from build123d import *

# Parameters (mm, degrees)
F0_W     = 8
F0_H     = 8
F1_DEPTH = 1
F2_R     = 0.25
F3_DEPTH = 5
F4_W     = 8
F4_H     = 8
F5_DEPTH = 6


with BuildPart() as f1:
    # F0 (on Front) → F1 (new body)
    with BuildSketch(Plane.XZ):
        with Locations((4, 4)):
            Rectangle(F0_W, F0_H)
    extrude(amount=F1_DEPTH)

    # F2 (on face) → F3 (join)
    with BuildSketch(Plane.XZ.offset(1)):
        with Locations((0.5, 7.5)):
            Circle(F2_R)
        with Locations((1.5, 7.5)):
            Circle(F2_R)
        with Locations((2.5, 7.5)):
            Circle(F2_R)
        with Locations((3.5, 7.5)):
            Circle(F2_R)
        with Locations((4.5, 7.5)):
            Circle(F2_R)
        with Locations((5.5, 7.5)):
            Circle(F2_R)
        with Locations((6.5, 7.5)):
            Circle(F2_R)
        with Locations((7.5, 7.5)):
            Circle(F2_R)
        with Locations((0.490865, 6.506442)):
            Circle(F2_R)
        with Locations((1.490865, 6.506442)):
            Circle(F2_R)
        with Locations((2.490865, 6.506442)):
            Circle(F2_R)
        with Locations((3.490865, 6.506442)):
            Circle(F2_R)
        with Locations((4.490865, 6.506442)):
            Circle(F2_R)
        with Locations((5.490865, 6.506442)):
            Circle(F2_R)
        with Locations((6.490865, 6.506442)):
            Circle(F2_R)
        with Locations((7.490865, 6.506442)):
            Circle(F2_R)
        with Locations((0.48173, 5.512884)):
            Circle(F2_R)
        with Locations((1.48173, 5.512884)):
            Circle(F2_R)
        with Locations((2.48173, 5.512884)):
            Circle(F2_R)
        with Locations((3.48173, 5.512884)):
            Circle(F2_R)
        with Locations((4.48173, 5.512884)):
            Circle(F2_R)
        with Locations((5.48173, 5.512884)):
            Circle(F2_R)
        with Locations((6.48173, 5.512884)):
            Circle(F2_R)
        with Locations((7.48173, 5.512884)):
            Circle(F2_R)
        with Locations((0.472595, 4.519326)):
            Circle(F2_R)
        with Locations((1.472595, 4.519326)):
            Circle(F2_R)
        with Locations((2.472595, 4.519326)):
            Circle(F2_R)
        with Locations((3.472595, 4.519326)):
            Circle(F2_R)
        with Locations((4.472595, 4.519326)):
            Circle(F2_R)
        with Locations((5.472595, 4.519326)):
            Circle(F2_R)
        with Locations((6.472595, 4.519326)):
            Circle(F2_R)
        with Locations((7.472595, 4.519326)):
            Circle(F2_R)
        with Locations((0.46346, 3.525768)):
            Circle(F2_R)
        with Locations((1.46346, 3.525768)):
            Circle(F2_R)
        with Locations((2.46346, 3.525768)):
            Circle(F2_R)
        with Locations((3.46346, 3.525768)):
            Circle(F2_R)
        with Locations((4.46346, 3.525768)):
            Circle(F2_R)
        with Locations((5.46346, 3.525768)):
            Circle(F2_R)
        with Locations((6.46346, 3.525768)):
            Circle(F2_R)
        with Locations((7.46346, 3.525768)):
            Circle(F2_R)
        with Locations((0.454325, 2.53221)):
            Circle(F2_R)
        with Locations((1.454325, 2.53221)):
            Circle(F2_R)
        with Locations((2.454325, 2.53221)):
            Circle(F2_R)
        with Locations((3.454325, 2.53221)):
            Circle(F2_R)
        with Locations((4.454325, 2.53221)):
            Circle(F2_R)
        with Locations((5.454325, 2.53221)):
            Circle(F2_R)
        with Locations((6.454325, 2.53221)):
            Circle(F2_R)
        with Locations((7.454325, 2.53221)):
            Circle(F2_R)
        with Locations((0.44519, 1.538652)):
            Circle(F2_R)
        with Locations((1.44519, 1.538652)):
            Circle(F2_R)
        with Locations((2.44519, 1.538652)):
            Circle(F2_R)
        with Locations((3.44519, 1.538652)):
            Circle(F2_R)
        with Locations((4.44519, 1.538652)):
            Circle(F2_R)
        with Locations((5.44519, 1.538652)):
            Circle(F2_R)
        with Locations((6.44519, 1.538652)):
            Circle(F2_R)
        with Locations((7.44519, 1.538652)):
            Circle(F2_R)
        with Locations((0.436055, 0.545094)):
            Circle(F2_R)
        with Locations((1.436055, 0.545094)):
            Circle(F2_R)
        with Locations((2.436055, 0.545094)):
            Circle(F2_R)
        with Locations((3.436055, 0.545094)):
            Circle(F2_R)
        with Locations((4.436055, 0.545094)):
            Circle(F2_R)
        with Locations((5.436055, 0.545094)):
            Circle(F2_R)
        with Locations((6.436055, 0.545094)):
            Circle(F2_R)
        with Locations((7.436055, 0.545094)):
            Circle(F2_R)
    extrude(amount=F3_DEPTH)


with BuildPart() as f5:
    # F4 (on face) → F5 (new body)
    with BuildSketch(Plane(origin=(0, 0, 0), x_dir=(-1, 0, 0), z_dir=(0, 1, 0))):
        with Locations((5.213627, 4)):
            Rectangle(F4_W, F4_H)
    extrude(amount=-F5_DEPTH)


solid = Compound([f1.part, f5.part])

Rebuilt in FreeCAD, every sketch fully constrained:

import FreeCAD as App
import Part
import Sketcher

V = App.Vector
Q = App.Units.Quantity

doc = App.newDocument("Part")
body = doc.addObject("PartDesign::Body", "Body")

# Sketch on XZ plane
sketch1 = body.newObject("Sketcher::SketchObject", "Sketch")
sketch1.AttachmentSupport = (doc.getObject("XZ_Plane"), [""])
sketch1.MapMode = "FlatFace"
sketch1.addGeometry([
    Part.LineSegment(V(0, 8, 0), V(0, 0, 0)),
    Part.LineSegment(V(0, 0, 0), V(8, 0, 0)),
    Part.LineSegment(V(8, 0, 0), V(8, 8, 0)),
    Part.LineSegment(V(8, 8, 0), V(0, 8, 0)),
], False)
sketch1.addConstraint([
    Sketcher.Constraint("Coincident", 0, 2, 1, 1),
    Sketcher.Constraint("Coincident", 1, 2, 2, 1),
    Sketcher.Constraint("Coincident", 2, 2, 3, 1),
    Sketcher.Constraint("Coincident", 3, 2, 0, 1),
    Sketcher.Constraint("Vertical", 0),
    Sketcher.Constraint("Horizontal", 1),
    Sketcher.Constraint("Vertical", 2),
    Sketcher.Constraint("Horizontal", 3),
    Sketcher.Constraint("Coincident", 0, 2, -1, 1),
    Sketcher.Constraint("Equal", 3, 0),
    Sketcher.Constraint("DistanceX", 1, 1, 1, 2, Q("8 mm")),
])
pad1 = body.newObject("PartDesign::Pad", "Pad")
pad1.Profile = sketch1
pad1.Length = 1

# Sketch on XZ plane
sketch2 = body.newObject("Sketcher::SketchObject", "Sketch001")
sketch2.AttachmentSupport = (doc.getObject("XZ_Plane"), [""])
sketch2.MapMode = "FlatFace"
sketch2.AttachmentOffset = App.Placement(V(0, 0, 1), App.Rotation())
sketch2.addGeometry([
    Part.Circle(V(0.5, 7.5, 0), V(0, 0, 1), 0.25),  # 0
    Part.Circle(V(1.5, 7.5, 0), V(0, 0, 1), 0.25),  # 1
    Part.Circle(V(2.5, 7.5, 0), V(0, 0, 1), 0.25),  # 2
    Part.Circle(V(3.5, 7.5, 0), V(0, 0, 1), 0.25),  # 3
    Part.Circle(V(4.5, 7.5, 0), V(0, 0, 1), 0.25),  # 4
    Part.Circle(V(5.5, 7.5, 0), V(0, 0, 1), 0.25),  # 5
    Part.Circle(V(6.5, 7.5, 0), V(0, 0, 1), 0.25),  # 6
    Part.Circle(V(7.5, 7.5, 0), V(0, 0, 1), 0.25),  # 7
    Part.Circle(V(0.490865, 6.506442, 0), V(0, 0, 1), 0.25),  # 8
    Part.Circle(V(1.490865, 6.506442, 0), V(0, 0, 1), 0.25),  # 9
    Part.Circle(V(2.490865, 6.506442, 0), V(0, 0, 1), 0.25),  # 10
    Part.Circle(V(3.490865, 6.506442, 0), V(0, 0, 1), 0.25),  # 11
    Part.Circle(V(4.490865, 6.506442, 0), V(0, 0, 1), 0.25),  # 12
    Part.Circle(V(5.490865, 6.506442, 0), V(0, 0, 1), 0.25),  # 13
    Part.Circle(V(6.490865, 6.506442, 0), V(0, 0, 1), 0.25),  # 14
    Part.Circle(V(7.490865, 6.506442, 0), V(0, 0, 1), 0.25),  # 15
    Part.Circle(V(0.48173, 5.512884, 0), V(0, 0, 1), 0.25),  # 16
    Part.Circle(V(1.48173, 5.512884, 0), V(0, 0, 1), 0.25),  # 17
    Part.Circle(V(2.48173, 5.512884, 0), V(0, 0, 1), 0.25),  # 18
    Part.Circle(V(3.48173, 5.512884, 0), V(0, 0, 1), 0.25),  # 19
    Part.Circle(V(4.48173, 5.512884, 0), V(0, 0, 1), 0.25),  # 20
    Part.Circle(V(5.48173, 5.512884, 0), V(0, 0, 1), 0.25),  # 21
    Part.Circle(V(6.48173, 5.512884, 0), V(0, 0, 1), 0.25),  # 22
    Part.Circle(V(7.48173, 5.512884, 0), V(0, 0, 1), 0.25),  # 23
    Part.Circle(V(0.472595, 4.519326, 0), V(0, 0, 1), 0.25),  # 24
    Part.Circle(V(1.472595, 4.519326, 0), V(0, 0, 1), 0.25),  # 25
    Part.Circle(V(2.472595, 4.519326, 0), V(0, 0, 1), 0.25),  # 26
    Part.Circle(V(3.472595, 4.519326, 0), V(0, 0, 1), 0.25),  # 27
    Part.Circle(V(4.472595, 4.519326, 0), V(0, 0, 1), 0.25),  # 28
    Part.Circle(V(5.472595, 4.519326, 0), V(0, 0, 1), 0.25),  # 29
    Part.Circle(V(6.472595, 4.519326, 0), V(0, 0, 1), 0.25),  # 30
    Part.Circle(V(7.472595, 4.519326, 0), V(0, 0, 1), 0.25),  # 31
    Part.Circle(V(0.46346, 3.525768, 0), V(0, 0, 1), 0.25),  # 32
    Part.Circle(V(1.46346, 3.525768, 0), V(0, 0, 1), 0.25),  # 33
    Part.Circle(V(2.46346, 3.525768, 0), V(0, 0, 1), 0.25),  # 34
    Part.Circle(V(3.46346, 3.525768, 0), V(0, 0, 1), 0.25),  # 35
    Part.Circle(V(4.46346, 3.525768, 0), V(0, 0, 1), 0.25),  # 36
    Part.Circle(V(5.46346, 3.525768, 0), V(0, 0, 1), 0.25),  # 37
    Part.Circle(V(6.46346, 3.525768, 0), V(0, 0, 1), 0.25),  # 38
    Part.Circle(V(7.46346, 3.525768, 0), V(0, 0, 1), 0.25),  # 39
    Part.Circle(V(0.454325, 2.53221, 0), V(0, 0, 1), 0.25),  # 40
    Part.Circle(V(1.454325, 2.53221, 0), V(0, 0, 1), 0.25),  # 41
    Part.Circle(V(2.454325, 2.53221, 0), V(0, 0, 1), 0.25),  # 42
    Part.Circle(V(3.454325, 2.53221, 0), V(0, 0, 1), 0.25),  # 43
    Part.Circle(V(4.454325, 2.53221, 0), V(0, 0, 1), 0.25),  # 44
    Part.Circle(V(5.454325, 2.53221, 0), V(0, 0, 1), 0.25),  # 45
    Part.Circle(V(6.454325, 2.53221, 0), V(0, 0, 1), 0.25),  # 46
    Part.Circle(V(7.454325, 2.53221, 0), V(0, 0, 1), 0.25),  # 47
    Part.Circle(V(0.44519, 1.538652, 0), V(0, 0, 1), 0.25),  # 48
    Part.Circle(V(1.44519, 1.538652, 0), V(0, 0, 1), 0.25),  # 49
    Part.Circle(V(2.44519, 1.538652, 0), V(0, 0, 1), 0.25),  # 50
    Part.Circle(V(3.44519, 1.538652, 0), V(0, 0, 1), 0.25),  # 51
    Part.Circle(V(4.44519, 1.538652, 0), V(0, 0, 1), 0.25),  # 52
    Part.Circle(V(5.44519, 1.538652, 0), V(0, 0, 1), 0.25),  # 53
    Part.Circle(V(6.44519, 1.538652, 0), V(0, 0, 1), 0.25),  # 54
    Part.Circle(V(7.44519, 1.538652, 0), V(0, 0, 1), 0.25),  # 55
    Part.Circle(V(0.436055, 0.545094, 0), V(0, 0, 1), 0.25),  # 56
    Part.Circle(V(1.436055, 0.545094, 0), V(0, 0, 1), 0.25),  # 57
    Part.Circle(V(2.436055, 0.545094, 0), V(0, 0, 1), 0.25),  # 58
    Part.Circle(V(3.436055, 0.545094, 0), V(0, 0, 1), 0.25),  # 59
    Part.Circle(V(4.436055, 0.545094, 0), V(0, 0, 1), 0.25),  # 60
    Part.Circle(V(5.436055, 0.545094, 0), V(0, 0, 1), 0.25),  # 61
    Part.Circle(V(6.436055, 0.545094, 0), V(0, 0, 1), 0.25),  # 62
    Part.Circle(V(7.436055, 0.545094, 0), V(0, 0, 1), 0.25),  # 63
], False)
sketch2.addConstraint([
    Sketcher.Constraint("Equal", 0, 1),
    Sketcher.Constraint("Equal", 1, 2),
    Sketcher.Constraint("Equal", 2, 3),
    Sketcher.Constraint("Equal", 3, 4),
    Sketcher.Constraint("Equal", 4, 5),
    Sketcher.Constraint("Equal", 5, 6),
    Sketcher.Constraint("Equal", 6, 7),
    Sketcher.Constraint("Equal", 7, 8),
    Sketcher.Constraint("Equal", 8, 9),
    Sketcher.Constraint("Equal", 9, 10),
    Sketcher.Constraint("Equal", 10, 11),
    Sketcher.Constraint("Equal", 11, 12),
    Sketcher.Constraint("Equal", 12, 13),
    Sketcher.Constraint("Equal", 13, 14),
    Sketcher.Constraint("Equal", 14, 15),
    Sketcher.Constraint("Equal", 15, 16),
    Sketcher.Constraint("Equal", 16, 17),
    Sketcher.Constraint("Equal", 17, 18),
    Sketcher.Constraint("Equal", 18, 19),
    Sketcher.Constraint("Equal", 19, 20),
    Sketcher.Constraint("Equal", 20, 21),
    Sketcher.Constraint("Equal", 21, 22),
    Sketcher.Constraint("Equal", 22, 23),
    Sketcher.Constraint("Equal", 23, 24),
    Sketcher.Constraint("Equal", 24, 25),
    Sketcher.Constraint("Equal", 25, 26),
    Sketcher.Constraint("Equal", 26, 27),
    Sketcher.Constraint("Equal", 27, 28),
    Sketcher.Constraint("Equal", 28, 29),
    Sketcher.Constraint("Equal", 29, 30),
    Sketcher.Constraint("Equal", 30, 31),
    Sketcher.Constraint("Equal", 31, 32),
    Sketcher.Constraint("Equal", 32, 33),
    Sketcher.Constraint("Equal", 33, 34),
    Sketcher.Constraint("Equal", 34, 35),
    Sketcher.Constraint("Equal", 35, 36),
    Sketcher.Constraint("Equal", 36, 37),
    Sketcher.Constraint("Equal", 37, 38),
    Sketcher.Constraint("Equal", 38, 39),
    Sketcher.Constraint("Equal", 39, 40),
    Sketcher.Constraint("Equal", 40, 41),
    Sketcher.Constraint("Equal", 41, 42),
    Sketcher.Constraint("Equal", 42, 43),
    Sketcher.Constraint("Equal", 43, 44),
    Sketcher.Constraint("Equal", 44, 45),
    Sketcher.Constraint("Equal", 45, 46),
    Sketcher.Constraint("Equal", 46, 47),
    Sketcher.Constraint("Equal", 47, 48),
    Sketcher.Constraint("Equal", 48, 49),
    Sketcher.Constraint("Equal", 49, 50),
    Sketcher.Constraint("Equal", 50, 51),
    Sketcher.Constraint("Equal", 51, 52),
    Sketcher.Constraint("Equal", 52, 53),
    Sketcher.Constraint("Equal", 53, 54),
    Sketcher.Constraint("Equal", 54, 55),
    Sketcher.Constraint("Equal", 55, 56),
    Sketcher.Constraint("Equal", 56, 57),
    Sketcher.Constraint("Equal", 57, 58),
    Sketcher.Constraint("Equal", 58, 59),
    Sketcher.Constraint("Equal", 59, 60),
    Sketcher.Constraint("Equal", 60, 61),
    Sketcher.Constraint("Equal", 61, 62),
    Sketcher.Constraint("Equal", 62, 63),
    Sketcher.Constraint("Horizontal", 0, 3, 1, 3),
    Sketcher.Constraint("Horizontal", 1, 3, 2, 3),
    Sketcher.Constraint("Horizontal", 2, 3, 3, 3),
    Sketcher.Constraint("Horizontal", 3, 3, 4, 3),
    Sketcher.Constraint("Horizontal", 4, 3, 5, 3),
    Sketcher.Constraint("Horizontal", 5, 3, 6, 3),
    Sketcher.Constraint("Horizontal", 6, 3, 7, 3),
    Sketcher.Constraint("Horizontal", 8, 3, 9, 3),
    Sketcher.Constraint("Horizontal", 9, 3, 10, 3),
    Sketcher.Constraint("Horizontal", 10, 3, 11, 3),
    Sketcher.Constraint("Horizontal", 11, 3, 12, 3),
    Sketcher.Constraint("Horizontal", 12, 3, 13, 3),
    Sketcher.Constraint("Horizontal", 13, 3, 14, 3),
    Sketcher.Constraint("Horizontal", 14, 3, 15, 3),
    Sketcher.Constraint("Horizontal", 16, 3, 17, 3),
    Sketcher.Constraint("Horizontal", 17, 3, 18, 3),
    Sketcher.Constraint("Horizontal", 18, 3, 19, 3),
    Sketcher.Constraint("Horizontal", 19, 3, 20, 3),
    Sketcher.Constraint("Horizontal", 20, 3, 21, 3),
    Sketcher.Constraint("Horizontal", 21, 3, 22, 3),
    Sketcher.Constraint("Horizontal", 22, 3, 23, 3),
    Sketcher.Constraint("Horizontal", 24, 3, 25, 3),
    Sketcher.Constraint("Horizontal", 25, 3, 26, 3),
    Sketcher.Constraint("Horizontal", 26, 3, 27, 3),
    Sketcher.Constraint("Horizontal", 27, 3, 28, 3),
    Sketcher.Constraint("Horizontal", 28, 3, 29, 3),
    Sketcher.Constraint("Horizontal", 29, 3, 30, 3),
    Sketcher.Constraint("Horizontal", 30, 3, 31, 3),
    Sketcher.Constraint("Horizontal", 32, 3, 33, 3),
    Sketcher.Constraint("Horizontal", 33, 3, 34, 3),
    Sketcher.Constraint("Horizontal", 34, 3, 35, 3),
    Sketcher.Constraint("Horizontal", 35, 3, 36, 3),
    Sketcher.Constraint("Horizontal", 36, 3, 37, 3),
    Sketcher.Constraint("Horizontal", 37, 3, 38, 3),
    Sketcher.Constraint("Horizontal", 38, 3, 39, 3),
    Sketcher.Constraint("Horizontal", 40, 3, 41, 3),
    Sketcher.Constraint("Horizontal", 41, 3, 42, 3),
    Sketcher.Constraint("Horizontal", 42, 3, 43, 3),
    Sketcher.Constraint("Horizontal", 43, 3, 44, 3),
    Sketcher.Constraint("Horizontal", 44, 3, 45, 3),
    Sketcher.Constraint("Horizontal", 45, 3, 46, 3),
    Sketcher.Constraint("Horizontal", 46, 3, 47, 3),
    Sketcher.Constraint("Horizontal", 48, 3, 49, 3),
    Sketcher.Constraint("Horizontal", 49, 3, 50, 3),
    Sketcher.Constraint("Horizontal", 50, 3, 51, 3),
    Sketcher.Constraint("Horizontal", 51, 3, 52, 3),
    Sketcher.Constraint("Horizontal", 52, 3, 53, 3),
    Sketcher.Constraint("Horizontal", 53, 3, 54, 3),
    Sketcher.Constraint("Horizontal", 54, 3, 55, 3),
    Sketcher.Constraint("Horizontal", 56, 3, 57, 3),
    Sketcher.Constraint("Horizontal", 57, 3, 58, 3),
    Sketcher.Constraint("Horizontal", 58, 3, 59, 3),
    Sketcher.Constraint("Horizontal", 59, 3, 60, 3),
    Sketcher.Constraint("Horizontal", 60, 3, 61, 3),
    Sketcher.Constraint("Horizontal", 61, 3, 62, 3),
    Sketcher.Constraint("Horizontal", 62, 3, 63, 3),
    Sketcher.Constraint("Diameter", 0, Q("0.5 mm")),
    Sketcher.Constraint("DistanceX", -1, 1, 0, 3, Q("0.5 mm")),
    Sketcher.Constraint("DistanceY", -1, 1, 0, 3, Q("7.5 mm")),
    Sketcher.Constraint("DistanceX", -1, 1, 1, 3, Q("1.5 mm")),
    Sketcher.Constraint("DistanceX", -1, 1, 2, 3, Q("2.5 mm")),
    Sketcher.Constraint("DistanceX", -1, 1, 3, 3, Q("3.5 mm")),
    Sketcher.Constraint("DistanceX", -1, 1, 4, 3, Q("4.5 mm")),
    Sketcher.Constraint("DistanceX", -1, 1, 5, 3, Q("5.5 mm")),
    Sketcher.Constraint("DistanceX", -1, 1, 6, 3, Q("6.5 mm")),
    Sketcher.Constraint("DistanceX", -1, 1, 7, 3, Q("7.5 mm")),
    Sketcher.Constraint("DistanceX", -1, 1, 16, 3, Q("0.48173 mm")),
    Sketcher.Constraint("DistanceX", -1, 1, 17, 3, Q("1.48173 mm")),
    Sketcher.Constraint("DistanceX", -1, 1, 18, 3, Q("2.48173 mm")),
    Sketcher.Constraint("DistanceX", -1, 1, 19, 3, Q("3.48173 mm")),
    Sketcher.Constraint("DistanceX", -1, 1, 20, 3, Q("4.48173 mm")),
    Sketcher.Constraint("DistanceX", -1, 1, 21, 3, Q("5.48173 mm")),
    Sketcher.Constraint("DistanceX", -1, 1, 22, 3, Q("6.48173 mm")),
    Sketcher.Constraint("DistanceX", -1, 1, 23, 3, Q("7.48173 mm")),
    Sketcher.Constraint("DistanceX", -1, 1, 32, 3, Q("0.46346 mm")),
    Sketcher.Constraint("DistanceX", -1, 1, 33, 3, Q("1.46346 mm")),
    Sketcher.Constraint("DistanceX", -1, 1, 34, 3, Q("2.46346 mm")),
    Sketcher.Constraint("DistanceX", -1, 1, 35, 3, Q("3.46346 mm")),
    Sketcher.Constraint("DistanceX", -1, 1, 36, 3, Q("4.46346 mm")),
    Sketcher.Constraint("DistanceX", -1, 1, 37, 3, Q("5.46346 mm")),
    Sketcher.Constraint("DistanceX", -1, 1, 38, 3, Q("6.46346 mm")),
    Sketcher.Constraint("DistanceX", -1, 1, 39, 3, Q("7.46346 mm")),
    Sketcher.Constraint("DistanceY", -1, 1, 40, 3, Q("2.53221 mm")),
    Sketcher.Constraint("DistanceX", -1, 1, 48, 3, Q("0.44519 mm")),
    Sketcher.Constraint("DistanceY", -1, 1, 48, 3, Q("1.538652 mm")),
    Sketcher.Constraint("DistanceX", -1, 1, 49, 3, Q("1.44519 mm")),
    Sketcher.Constraint("DistanceX", -1, 1, 50, 3, Q("2.44519 mm")),
    Sketcher.Constraint("DistanceX", -1, 1, 51, 3, Q("3.44519 mm")),
    Sketcher.Constraint("DistanceX", -1, 1, 52, 3, Q("4.44519 mm")),
    Sketcher.Constraint("DistanceX", -1, 1, 53, 3, Q("5.44519 mm")),
    Sketcher.Constraint("DistanceX", -1, 1, 54, 3, Q("6.44519 mm")),
    Sketcher.Constraint("DistanceX", -1, 1, 55, 3, Q("7.44519 mm")),
    Sketcher.Constraint("DistanceX", -1, 1, 8, 3, Q("0.490865 mm")),
    Sketcher.Constraint("DistanceY", -1, 1, 8, 3, Q("6.506442 mm")),
    Sketcher.Constraint("DistanceX", -1, 1, 9, 3, Q("1.490865 mm")),
    Sketcher.Constraint("DistanceX", -1, 1, 10, 3, Q("2.490865 mm")),
    Sketcher.Constraint("DistanceX", -1, 1, 11, 3, Q("3.490865 mm")),
    Sketcher.Constraint("DistanceX", -1, 1, 12, 3, Q("4.490865 mm")),
    Sketcher.Constraint("DistanceX", -1, 1, 13, 3, Q("5.490865 mm")),
    Sketcher.Constraint("DistanceX", -1, 1, 14, 3, Q("6.490865 mm")),
    Sketcher.Constraint("DistanceX", -1, 1, 15, 3, Q("7.490865 mm")),
    Sketcher.Constraint("DistanceY", -1, 1, 16, 3, Q("5.512884 mm")),
    Sketcher.Constraint("DistanceX", -1, 1, 24, 3, Q("0.472595 mm")),
    Sketcher.Constraint("DistanceY", -1, 1, 24, 3, Q("4.519326 mm")),
    Sketcher.Constraint("DistanceX", -1, 1, 25, 3, Q("1.472595 mm")),
    Sketcher.Constraint("DistanceX", -1, 1, 26, 3, Q("2.472595 mm")),
    Sketcher.Constraint("DistanceX", -1, 1, 27, 3, Q("3.472595 mm")),
    Sketcher.Constraint("DistanceX", -1, 1, 28, 3, Q("4.472595 mm")),
    Sketcher.Constraint("DistanceX", -1, 1, 29, 3, Q("5.472595 mm")),
    Sketcher.Constraint("DistanceX", -1, 1, 30, 3, Q("6.472595 mm")),
    Sketcher.Constraint("DistanceX", -1, 1, 31, 3, Q("7.472595 mm")),
    Sketcher.Constraint("DistanceY", -1, 1, 32, 3, Q("3.525768 mm")),
    Sketcher.Constraint("DistanceX", -1, 1, 40, 3, Q("0.454325 mm")),
    Sketcher.Constraint("DistanceX", -1, 1, 41, 3, Q("1.454325 mm")),
    Sketcher.Constraint("DistanceX", -1, 1, 42, 3, Q("2.454325 mm")),
    Sketcher.Constraint("DistanceX", -1, 1, 43, 3, Q("3.454325 mm")),
    Sketcher.Constraint("DistanceX", -1, 1, 44, 3, Q("4.454325 mm")),
    Sketcher.Constraint("DistanceX", -1, 1, 45, 3, Q("5.454325 mm")),
    Sketcher.Constraint("DistanceX", -1, 1, 46, 3, Q("6.454325 mm")),
    Sketcher.Constraint("DistanceX", -1, 1, 47, 3, Q("7.454325 mm")),
    Sketcher.Constraint("DistanceX", -1, 1, 56, 3, Q("0.436055 mm")),
    Sketcher.Constraint("DistanceY", -1, 1, 56, 3, Q("0.545094 mm")),
    Sketcher.Constraint("DistanceX", -1, 1, 57, 3, Q("1.436055 mm")),
    Sketcher.Constraint("DistanceX", -1, 1, 58, 3, Q("2.436055 mm")),
    Sketcher.Constraint("DistanceX", -1, 1, 59, 3, Q("3.436055 mm")),
    Sketcher.Constraint("DistanceX", -1, 1, 60, 3, Q("4.436055 mm")),
    Sketcher.Constraint("DistanceX", -1, 1, 61, 3, Q("5.436055 mm")),
    Sketcher.Constraint("DistanceX", -1, 1, 62, 3, Q("6.436055 mm")),
    Sketcher.Constraint("DistanceX", -1, 1, 63, 3, Q("7.436055 mm")),
])
pad2 = body.newObject("PartDesign::Pad", "Pad001")
pad2.Profile = sketch2
pad2.Length = 5
body2 = doc.addObject("PartDesign::Body", "Body001")

# Sketch on XZ plane
sketch3 = body2.newObject("Sketcher::SketchObject", "Sketch002")
sketch3.AttachmentSupport = (doc.getObject("XZ_Plane001"), [""])
sketch3.MapMode = "FlatFace"
sketch3.addGeometry([
    Part.LineSegment(V(-1.213627, 8, 0), V(-1.213627, 0, 0)),
    Part.LineSegment(V(-1.213627, 0, 0), V(-9.213627, 0, 0)),
    Part.LineSegment(V(-9.213627, 0, 0), V(-9.213627, 8, 0)),
    Part.LineSegment(V(-9.213627, 8, 0), V(-1.213627, 8, 0)),
], False)
sketch3.addConstraint([
    Sketcher.Constraint("Coincident", 0, 2, 1, 1),
    Sketcher.Constraint("Coincident", 1, 2, 2, 1),
    Sketcher.Constraint("Coincident", 2, 2, 3, 1),
    Sketcher.Constraint("Coincident", 3, 2, 0, 1),
    Sketcher.Constraint("Vertical", 0),
    Sketcher.Constraint("Horizontal", 1),
    Sketcher.Constraint("Vertical", 2),
    Sketcher.Constraint("Horizontal", 3),
    Sketcher.Constraint("PointOnObject", 0, 2, -1),
    Sketcher.Constraint("Equal", 3, 0),
    Sketcher.Constraint("DistanceX", 1, 2, 1, 1, Q("8 mm")),
    Sketcher.Constraint("DistanceX", 0, 2, -1, 1, Q("1.213627 mm")),
])
pad3 = body2.newObject("PartDesign::Pad", "Pad002")
pad3.Profile = sketch3
pad3.Length = 6

doc.recompute()
